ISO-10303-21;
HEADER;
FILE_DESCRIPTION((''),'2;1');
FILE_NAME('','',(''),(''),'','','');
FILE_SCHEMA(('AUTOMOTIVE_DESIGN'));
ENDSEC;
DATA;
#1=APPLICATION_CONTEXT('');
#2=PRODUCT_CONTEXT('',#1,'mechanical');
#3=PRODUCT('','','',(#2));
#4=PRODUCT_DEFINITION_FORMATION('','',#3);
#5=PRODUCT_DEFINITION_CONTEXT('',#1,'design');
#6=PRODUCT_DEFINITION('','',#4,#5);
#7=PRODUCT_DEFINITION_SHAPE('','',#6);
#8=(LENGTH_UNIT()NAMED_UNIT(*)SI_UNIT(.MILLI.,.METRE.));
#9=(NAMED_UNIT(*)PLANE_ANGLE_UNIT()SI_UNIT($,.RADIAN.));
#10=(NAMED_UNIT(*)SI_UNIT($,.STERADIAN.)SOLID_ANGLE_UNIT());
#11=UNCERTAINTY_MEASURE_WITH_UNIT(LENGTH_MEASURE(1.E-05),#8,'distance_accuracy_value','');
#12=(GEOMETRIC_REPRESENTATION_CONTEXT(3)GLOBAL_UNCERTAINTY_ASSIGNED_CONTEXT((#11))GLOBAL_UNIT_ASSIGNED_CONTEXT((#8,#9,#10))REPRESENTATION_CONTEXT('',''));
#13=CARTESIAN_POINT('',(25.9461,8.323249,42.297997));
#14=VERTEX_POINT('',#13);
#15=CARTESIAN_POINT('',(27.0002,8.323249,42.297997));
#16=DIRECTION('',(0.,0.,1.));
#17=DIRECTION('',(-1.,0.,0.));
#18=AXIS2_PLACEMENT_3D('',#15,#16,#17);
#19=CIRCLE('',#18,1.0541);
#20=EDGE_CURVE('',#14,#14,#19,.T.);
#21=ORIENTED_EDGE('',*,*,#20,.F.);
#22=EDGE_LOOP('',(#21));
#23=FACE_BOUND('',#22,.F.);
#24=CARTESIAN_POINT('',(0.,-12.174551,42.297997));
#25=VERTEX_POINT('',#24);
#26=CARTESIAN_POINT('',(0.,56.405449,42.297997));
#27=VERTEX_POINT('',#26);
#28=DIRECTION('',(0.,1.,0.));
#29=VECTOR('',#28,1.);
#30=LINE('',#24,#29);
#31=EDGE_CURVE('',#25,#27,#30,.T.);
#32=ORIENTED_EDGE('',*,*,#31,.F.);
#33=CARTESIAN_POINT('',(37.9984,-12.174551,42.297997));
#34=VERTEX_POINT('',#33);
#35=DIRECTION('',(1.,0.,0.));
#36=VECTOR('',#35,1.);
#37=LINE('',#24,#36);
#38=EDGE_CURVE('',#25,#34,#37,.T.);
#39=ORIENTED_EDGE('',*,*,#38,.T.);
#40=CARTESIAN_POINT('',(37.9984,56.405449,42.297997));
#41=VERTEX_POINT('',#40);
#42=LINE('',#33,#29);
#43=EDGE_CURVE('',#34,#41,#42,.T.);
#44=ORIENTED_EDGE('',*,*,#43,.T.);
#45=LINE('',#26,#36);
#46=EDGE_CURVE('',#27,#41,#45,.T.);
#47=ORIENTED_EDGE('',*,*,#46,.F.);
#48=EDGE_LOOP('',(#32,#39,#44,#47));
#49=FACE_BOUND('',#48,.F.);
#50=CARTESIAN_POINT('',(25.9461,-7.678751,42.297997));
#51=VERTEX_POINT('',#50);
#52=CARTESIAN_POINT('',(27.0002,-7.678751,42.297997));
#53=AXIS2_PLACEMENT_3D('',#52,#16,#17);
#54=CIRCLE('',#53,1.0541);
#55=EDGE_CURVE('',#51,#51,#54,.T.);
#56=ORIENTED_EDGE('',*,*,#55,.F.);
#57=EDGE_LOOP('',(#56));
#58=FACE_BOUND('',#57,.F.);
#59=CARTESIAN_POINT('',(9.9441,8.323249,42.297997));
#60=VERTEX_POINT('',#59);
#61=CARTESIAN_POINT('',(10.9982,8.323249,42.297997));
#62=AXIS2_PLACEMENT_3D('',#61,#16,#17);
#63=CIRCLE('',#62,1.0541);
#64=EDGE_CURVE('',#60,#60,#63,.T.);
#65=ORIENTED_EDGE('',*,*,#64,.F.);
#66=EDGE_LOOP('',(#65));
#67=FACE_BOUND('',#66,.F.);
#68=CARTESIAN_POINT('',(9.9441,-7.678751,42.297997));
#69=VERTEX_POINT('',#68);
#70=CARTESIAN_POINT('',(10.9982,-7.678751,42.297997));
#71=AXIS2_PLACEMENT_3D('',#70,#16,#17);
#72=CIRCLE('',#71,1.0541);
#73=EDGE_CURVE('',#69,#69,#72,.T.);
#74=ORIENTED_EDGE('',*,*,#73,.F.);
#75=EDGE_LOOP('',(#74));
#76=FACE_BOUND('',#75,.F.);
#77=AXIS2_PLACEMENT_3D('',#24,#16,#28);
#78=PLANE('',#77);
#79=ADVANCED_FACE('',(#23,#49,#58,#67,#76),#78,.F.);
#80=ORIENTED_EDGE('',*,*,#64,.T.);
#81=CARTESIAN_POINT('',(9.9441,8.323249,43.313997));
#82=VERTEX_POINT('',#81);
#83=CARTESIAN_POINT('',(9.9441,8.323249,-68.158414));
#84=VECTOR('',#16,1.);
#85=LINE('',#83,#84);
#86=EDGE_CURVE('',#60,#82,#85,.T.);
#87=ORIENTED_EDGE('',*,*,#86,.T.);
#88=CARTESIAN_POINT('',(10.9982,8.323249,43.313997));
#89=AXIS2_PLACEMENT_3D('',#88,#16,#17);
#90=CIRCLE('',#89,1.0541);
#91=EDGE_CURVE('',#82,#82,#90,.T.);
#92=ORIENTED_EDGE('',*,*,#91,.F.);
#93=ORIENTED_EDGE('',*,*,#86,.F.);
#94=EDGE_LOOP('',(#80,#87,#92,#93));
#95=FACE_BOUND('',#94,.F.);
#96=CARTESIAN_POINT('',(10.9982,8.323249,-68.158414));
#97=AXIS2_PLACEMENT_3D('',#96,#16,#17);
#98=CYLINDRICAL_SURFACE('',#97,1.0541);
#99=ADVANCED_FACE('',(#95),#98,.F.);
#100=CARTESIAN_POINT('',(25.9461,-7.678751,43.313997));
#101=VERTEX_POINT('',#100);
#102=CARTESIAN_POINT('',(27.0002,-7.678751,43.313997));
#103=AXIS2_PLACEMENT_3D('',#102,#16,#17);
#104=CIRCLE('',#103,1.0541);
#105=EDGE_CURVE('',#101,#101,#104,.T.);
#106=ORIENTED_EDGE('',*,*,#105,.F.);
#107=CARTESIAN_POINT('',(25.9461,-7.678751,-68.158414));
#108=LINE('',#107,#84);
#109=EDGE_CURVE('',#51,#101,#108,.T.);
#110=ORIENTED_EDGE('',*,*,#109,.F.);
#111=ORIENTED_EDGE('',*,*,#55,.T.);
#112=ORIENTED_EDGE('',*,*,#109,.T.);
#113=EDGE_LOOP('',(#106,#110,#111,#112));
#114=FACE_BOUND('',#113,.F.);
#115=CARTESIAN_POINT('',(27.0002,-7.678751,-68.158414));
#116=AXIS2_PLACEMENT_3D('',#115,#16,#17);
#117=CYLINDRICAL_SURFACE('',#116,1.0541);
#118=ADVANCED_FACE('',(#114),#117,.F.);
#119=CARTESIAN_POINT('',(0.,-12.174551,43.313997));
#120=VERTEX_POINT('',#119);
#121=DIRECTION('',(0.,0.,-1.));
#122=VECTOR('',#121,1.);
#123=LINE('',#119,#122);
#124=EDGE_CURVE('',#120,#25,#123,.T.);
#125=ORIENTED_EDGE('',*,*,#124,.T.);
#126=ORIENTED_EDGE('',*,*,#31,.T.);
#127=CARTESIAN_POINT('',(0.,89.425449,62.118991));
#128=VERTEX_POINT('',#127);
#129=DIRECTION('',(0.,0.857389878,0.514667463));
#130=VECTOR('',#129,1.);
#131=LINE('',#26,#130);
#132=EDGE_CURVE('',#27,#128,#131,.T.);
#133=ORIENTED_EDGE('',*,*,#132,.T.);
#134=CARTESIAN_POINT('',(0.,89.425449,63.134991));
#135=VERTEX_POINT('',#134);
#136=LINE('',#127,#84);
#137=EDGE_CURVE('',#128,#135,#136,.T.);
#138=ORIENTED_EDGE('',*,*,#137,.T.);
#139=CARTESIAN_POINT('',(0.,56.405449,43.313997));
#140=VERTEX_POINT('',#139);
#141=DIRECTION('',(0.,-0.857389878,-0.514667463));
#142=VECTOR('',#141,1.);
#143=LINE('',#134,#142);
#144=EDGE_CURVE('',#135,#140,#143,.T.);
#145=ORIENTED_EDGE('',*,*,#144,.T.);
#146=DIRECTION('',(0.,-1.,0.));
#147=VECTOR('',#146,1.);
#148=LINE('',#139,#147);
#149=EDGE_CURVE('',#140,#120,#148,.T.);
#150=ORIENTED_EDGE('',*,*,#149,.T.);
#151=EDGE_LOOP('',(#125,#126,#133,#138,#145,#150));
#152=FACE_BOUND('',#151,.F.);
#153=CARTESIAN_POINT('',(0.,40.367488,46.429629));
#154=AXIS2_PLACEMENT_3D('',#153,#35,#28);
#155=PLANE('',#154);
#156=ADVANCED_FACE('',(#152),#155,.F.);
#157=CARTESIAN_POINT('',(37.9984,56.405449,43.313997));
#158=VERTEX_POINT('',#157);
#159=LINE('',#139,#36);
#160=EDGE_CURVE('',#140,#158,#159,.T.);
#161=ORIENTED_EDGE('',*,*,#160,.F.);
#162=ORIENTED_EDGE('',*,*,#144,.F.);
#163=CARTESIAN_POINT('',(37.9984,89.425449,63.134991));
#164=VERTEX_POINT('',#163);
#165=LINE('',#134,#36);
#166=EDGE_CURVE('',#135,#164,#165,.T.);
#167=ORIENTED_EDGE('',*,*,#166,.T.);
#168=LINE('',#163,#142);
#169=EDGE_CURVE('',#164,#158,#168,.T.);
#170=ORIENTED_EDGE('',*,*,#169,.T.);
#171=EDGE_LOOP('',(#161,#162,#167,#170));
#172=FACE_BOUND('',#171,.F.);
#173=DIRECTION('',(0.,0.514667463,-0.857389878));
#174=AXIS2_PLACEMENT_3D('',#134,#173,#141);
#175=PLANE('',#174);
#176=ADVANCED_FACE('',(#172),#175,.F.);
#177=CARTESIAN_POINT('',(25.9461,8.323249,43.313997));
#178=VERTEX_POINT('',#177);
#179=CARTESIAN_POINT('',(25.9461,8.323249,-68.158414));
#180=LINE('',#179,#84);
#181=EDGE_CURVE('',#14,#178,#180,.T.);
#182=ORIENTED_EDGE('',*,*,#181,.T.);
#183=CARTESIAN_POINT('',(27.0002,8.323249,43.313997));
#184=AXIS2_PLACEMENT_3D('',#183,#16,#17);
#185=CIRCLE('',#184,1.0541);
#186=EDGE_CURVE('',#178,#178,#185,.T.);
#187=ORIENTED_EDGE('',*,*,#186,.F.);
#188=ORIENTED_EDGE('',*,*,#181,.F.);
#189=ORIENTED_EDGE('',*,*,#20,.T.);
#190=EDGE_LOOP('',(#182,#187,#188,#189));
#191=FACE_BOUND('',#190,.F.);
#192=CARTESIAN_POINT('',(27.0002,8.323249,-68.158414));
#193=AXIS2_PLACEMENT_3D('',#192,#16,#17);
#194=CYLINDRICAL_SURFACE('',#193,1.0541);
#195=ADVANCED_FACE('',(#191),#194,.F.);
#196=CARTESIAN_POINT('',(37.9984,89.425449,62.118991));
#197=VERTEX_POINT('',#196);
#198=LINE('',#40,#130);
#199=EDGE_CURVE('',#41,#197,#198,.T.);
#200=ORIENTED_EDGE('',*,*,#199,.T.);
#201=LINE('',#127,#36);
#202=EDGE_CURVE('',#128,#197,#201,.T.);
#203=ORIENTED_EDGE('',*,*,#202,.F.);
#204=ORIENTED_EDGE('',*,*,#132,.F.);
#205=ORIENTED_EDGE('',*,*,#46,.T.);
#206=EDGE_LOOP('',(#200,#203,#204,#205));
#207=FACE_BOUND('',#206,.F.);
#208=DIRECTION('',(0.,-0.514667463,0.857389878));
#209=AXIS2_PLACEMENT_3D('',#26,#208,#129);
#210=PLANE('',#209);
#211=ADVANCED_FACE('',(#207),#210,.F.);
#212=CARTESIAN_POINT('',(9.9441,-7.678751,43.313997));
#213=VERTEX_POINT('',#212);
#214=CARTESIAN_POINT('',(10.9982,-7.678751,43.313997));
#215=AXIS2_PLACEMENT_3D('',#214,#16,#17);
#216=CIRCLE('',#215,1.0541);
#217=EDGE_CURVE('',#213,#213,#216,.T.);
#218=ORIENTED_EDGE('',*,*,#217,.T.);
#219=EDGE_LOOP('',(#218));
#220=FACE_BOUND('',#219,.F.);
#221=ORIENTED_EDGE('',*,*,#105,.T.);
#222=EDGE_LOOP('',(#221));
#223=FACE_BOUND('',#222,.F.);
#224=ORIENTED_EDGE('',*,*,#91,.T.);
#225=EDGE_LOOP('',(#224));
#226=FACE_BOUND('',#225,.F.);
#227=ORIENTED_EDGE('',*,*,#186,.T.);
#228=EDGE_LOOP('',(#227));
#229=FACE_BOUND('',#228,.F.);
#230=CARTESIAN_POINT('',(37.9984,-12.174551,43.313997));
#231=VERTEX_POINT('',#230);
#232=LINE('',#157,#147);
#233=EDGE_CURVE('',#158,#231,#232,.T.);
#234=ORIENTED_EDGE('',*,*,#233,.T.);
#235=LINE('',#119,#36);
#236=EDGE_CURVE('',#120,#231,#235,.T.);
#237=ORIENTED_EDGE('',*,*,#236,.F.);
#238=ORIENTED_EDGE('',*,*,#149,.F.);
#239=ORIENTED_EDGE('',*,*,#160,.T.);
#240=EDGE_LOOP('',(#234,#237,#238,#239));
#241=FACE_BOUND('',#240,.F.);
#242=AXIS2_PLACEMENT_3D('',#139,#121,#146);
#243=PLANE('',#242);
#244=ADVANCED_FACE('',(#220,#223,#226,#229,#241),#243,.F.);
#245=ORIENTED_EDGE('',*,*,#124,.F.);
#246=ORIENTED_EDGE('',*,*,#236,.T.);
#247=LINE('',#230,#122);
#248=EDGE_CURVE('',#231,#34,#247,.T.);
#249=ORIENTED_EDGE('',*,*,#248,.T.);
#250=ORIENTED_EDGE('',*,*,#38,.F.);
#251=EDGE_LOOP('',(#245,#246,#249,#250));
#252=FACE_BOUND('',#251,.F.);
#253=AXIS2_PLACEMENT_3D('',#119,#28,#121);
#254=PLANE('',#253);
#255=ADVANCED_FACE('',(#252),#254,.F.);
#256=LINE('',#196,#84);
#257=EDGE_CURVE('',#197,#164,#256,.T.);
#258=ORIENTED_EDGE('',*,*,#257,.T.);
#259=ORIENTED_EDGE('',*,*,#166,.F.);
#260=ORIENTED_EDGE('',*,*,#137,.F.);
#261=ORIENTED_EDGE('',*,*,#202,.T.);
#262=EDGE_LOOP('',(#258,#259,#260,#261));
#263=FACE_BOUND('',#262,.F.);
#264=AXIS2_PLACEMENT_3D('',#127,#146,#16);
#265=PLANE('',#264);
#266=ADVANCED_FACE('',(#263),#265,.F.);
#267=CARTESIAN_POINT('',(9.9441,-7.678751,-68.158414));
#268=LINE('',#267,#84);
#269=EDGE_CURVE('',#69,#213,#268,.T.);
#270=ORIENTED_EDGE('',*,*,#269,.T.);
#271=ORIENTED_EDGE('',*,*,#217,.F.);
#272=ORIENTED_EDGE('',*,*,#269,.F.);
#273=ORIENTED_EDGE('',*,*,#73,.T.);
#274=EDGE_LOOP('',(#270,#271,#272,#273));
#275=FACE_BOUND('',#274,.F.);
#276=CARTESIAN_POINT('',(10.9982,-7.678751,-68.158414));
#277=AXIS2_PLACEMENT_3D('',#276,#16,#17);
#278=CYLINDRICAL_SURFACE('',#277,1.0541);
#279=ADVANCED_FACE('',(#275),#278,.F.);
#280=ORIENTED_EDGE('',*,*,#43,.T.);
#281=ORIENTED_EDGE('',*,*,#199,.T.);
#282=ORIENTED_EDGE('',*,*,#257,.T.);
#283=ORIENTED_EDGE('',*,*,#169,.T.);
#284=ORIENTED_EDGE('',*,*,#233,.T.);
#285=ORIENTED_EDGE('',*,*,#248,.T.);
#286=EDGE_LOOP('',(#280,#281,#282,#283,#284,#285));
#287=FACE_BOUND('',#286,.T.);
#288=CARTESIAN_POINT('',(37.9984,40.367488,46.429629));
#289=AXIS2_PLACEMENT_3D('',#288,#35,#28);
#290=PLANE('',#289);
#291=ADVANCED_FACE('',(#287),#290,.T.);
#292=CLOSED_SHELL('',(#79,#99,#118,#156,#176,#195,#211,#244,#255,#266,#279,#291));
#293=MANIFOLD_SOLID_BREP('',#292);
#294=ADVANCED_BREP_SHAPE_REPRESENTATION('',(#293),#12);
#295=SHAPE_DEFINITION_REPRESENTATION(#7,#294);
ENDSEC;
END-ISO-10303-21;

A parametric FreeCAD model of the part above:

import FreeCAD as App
import Part
import Sketcher
Q = App.Units.Quantity

doc = App.newDocument("Part")
body = doc.addObject("PartDesign::Body", "Body")

# Sketch on YZ plane
sketch1 = body.newObject("Sketcher::SketchObject", "Sketch")
sketch1.AttachmentSupport = (doc.getObject("YZ_Plane"), [""])
sketch1.MapMode = "FlatFace"
sketch1.addGeometry(Part.LineSegment(App.Vector(56.4, 43.3, 0), App.Vector(-12.2, 43.3, 0)), False)
sketch1.addGeometry(Part.LineSegment(App.Vector(-12.2, 43.3, 0), App.Vector(-12.2, 42.3, 0)), False)
sketch1.addGeometry(Part.LineSegment(App.Vector(-12.2, 42.3, 0), App.Vector(56.4, 42.3, 0)), False)
sketch1.addGeometry(Part.LineSegment(App.Vector(56.4, 42.3, 0), App.Vector(89.4, 62.1, 0)), False)
sketch1.addGeometry(Part.LineSegment(App.Vector(89.4, 62.1, 0), App.Vector(89.4, 63.1, 0)), False)
sketch1.addGeometry(Part.LineSegment(App.Vector(89.4, 63.1, 0), App.Vector(56.4, 43.3, 0)), False)
sketch1.addConstraint(Sketcher.Constraint("Coincident", 0, 2, 1, 1))
sketch1.addConstraint(Sketcher.Constraint("Coincident", 1, 2, 2, 1))
sketch1.addConstraint(Sketcher.Constraint("Coincident", 2, 2, 3, 1))
sketch1.addConstraint(Sketcher.Constraint("Coincident", 3, 2, 4, 1))
sketch1.addConstraint(Sketcher.Constraint("Coincident", 4, 2, 5, 1))
sketch1.addConstraint(Sketcher.Constraint("Coincident", 5, 2, 0, 1))
sketch1.addConstraint(Sketcher.Constraint("Horizontal", 0))
sketch1.addConstraint(Sketcher.Constraint("Vertical", 1))
sketch1.addConstraint(Sketcher.Constraint("Horizontal", 2))
sketch1.addConstraint(Sketcher.Constraint("Vertical", 4))
sketch1.addConstraint(Sketcher.Constraint("Parallel", 3, 5))
sketch1.addConstraint(Sketcher.Constraint("Vertical", 2, 2, 5, 2))
sketch1.addConstraint(Sketcher.Constraint("DistanceX", 0, 2, 0, 1, Q("2.7 in")))
sketch1.addConstraint(Sketcher.Constraint("DistanceX", 0, 2, 3, 2, Q("4 in")))
sketch1.addConstraint(Sketcher.Constraint("DistanceY", 1, 2, 1, 1, Q("0.04 in")))
sketch1.addConstraint(Sketcher.Constraint("DistanceX", 0, 2, -1, 1, Q("12.174551 mm")))
sketch1.addConstraint(Sketcher.Constraint("DistanceY", -1, 1, 3, 2, Q("62.118991 mm")))
sketch1.addConstraint(Sketcher.Constraint("Distance", 3, Q("38.512234 mm")))
pad1 = body.newObject("PartDesign::Pad", "Pad")
pad1.Profile = sketch1
pad1.Length = Q("1.496 in")

# Sketch on XY plane
sketch2 = body.newObject("Sketcher::SketchObject", "Sketch001")
sketch2.AttachmentSupport = (doc.getObject("XY_Plane"), [""])
sketch2.MapMode = "FlatFace"
sketch2.AttachmentOffset = App.Placement(App.Vector(0, 0, 42.297997), App.Rotation())
sketch2.addGeometry(Part.Circle(App.Vector(27, 8.3, 0), App.Vector(0, 0, 1), 1.1), False)
sketch2.addGeometry(Part.Circle(App.Vector(11, 8.3, 0), App.Vector(0, 0, 1), 1.1), False)
sketch2.addGeometry(Part.Circle(App.Vector(11, -7.7, 0), App.Vector(0, 0, 1), 1.1), False)
sketch2.addGeometry(Part.Circle(App.Vector(27, -7.7, 0), App.Vector(0, 0, 1), 1.1), False)
sketch2.addConstraint(Sketcher.Constraint("Equal", 0, 1))
sketch2.addConstraint(Sketcher.Constraint("Equal", 1, 2))
sketch2.addConstraint(Sketcher.Constraint("Equal", 2, 3))
sketch2.addConstraint(Sketcher.Constraint("Horizontal", 0, 3, 1, 3))
sketch2.addConstraint(Sketcher.Constraint("Horizontal", 2, 3, 3, 3))
sketch2.addConstraint(Sketcher.Constraint("Vertical", 1, 3, 2, 3))
sketch2.addConstraint(Sketcher.Constraint("Vertical", 0, 3, 3, 3))
sketch2.addConstraint(Sketcher.Constraint("Diameter", 0, Q("0.083 in")))
sketch2.addConstraint(Sketcher.Constraint("DistanceX", 1, 3, 0, 3, Q("0.63 in")))
sketch2.addConstraint(Sketcher.Constraint("DistanceY", 2, 3, 1, 3, Q("0.63 in")))
sketch2.addConstraint(Sketcher.Constraint("DistanceX", -1, 1, 0, 3, Q("1.063 in")))
sketch2.addConstraint(Sketcher.Constraint("DistanceY", -1, 1, 0, 3, Q("8.323249 mm")))
doc.recompute()
hole = body.newObject("PartDesign::Hole", "Hole")
hole.Profile = sketch2
hole.ThreadType = "None"
hole.Diameter = Q("0.083 in")
hole.DepthType = "ThroughAll"
hole.Reversed = True

doc.recompute()
